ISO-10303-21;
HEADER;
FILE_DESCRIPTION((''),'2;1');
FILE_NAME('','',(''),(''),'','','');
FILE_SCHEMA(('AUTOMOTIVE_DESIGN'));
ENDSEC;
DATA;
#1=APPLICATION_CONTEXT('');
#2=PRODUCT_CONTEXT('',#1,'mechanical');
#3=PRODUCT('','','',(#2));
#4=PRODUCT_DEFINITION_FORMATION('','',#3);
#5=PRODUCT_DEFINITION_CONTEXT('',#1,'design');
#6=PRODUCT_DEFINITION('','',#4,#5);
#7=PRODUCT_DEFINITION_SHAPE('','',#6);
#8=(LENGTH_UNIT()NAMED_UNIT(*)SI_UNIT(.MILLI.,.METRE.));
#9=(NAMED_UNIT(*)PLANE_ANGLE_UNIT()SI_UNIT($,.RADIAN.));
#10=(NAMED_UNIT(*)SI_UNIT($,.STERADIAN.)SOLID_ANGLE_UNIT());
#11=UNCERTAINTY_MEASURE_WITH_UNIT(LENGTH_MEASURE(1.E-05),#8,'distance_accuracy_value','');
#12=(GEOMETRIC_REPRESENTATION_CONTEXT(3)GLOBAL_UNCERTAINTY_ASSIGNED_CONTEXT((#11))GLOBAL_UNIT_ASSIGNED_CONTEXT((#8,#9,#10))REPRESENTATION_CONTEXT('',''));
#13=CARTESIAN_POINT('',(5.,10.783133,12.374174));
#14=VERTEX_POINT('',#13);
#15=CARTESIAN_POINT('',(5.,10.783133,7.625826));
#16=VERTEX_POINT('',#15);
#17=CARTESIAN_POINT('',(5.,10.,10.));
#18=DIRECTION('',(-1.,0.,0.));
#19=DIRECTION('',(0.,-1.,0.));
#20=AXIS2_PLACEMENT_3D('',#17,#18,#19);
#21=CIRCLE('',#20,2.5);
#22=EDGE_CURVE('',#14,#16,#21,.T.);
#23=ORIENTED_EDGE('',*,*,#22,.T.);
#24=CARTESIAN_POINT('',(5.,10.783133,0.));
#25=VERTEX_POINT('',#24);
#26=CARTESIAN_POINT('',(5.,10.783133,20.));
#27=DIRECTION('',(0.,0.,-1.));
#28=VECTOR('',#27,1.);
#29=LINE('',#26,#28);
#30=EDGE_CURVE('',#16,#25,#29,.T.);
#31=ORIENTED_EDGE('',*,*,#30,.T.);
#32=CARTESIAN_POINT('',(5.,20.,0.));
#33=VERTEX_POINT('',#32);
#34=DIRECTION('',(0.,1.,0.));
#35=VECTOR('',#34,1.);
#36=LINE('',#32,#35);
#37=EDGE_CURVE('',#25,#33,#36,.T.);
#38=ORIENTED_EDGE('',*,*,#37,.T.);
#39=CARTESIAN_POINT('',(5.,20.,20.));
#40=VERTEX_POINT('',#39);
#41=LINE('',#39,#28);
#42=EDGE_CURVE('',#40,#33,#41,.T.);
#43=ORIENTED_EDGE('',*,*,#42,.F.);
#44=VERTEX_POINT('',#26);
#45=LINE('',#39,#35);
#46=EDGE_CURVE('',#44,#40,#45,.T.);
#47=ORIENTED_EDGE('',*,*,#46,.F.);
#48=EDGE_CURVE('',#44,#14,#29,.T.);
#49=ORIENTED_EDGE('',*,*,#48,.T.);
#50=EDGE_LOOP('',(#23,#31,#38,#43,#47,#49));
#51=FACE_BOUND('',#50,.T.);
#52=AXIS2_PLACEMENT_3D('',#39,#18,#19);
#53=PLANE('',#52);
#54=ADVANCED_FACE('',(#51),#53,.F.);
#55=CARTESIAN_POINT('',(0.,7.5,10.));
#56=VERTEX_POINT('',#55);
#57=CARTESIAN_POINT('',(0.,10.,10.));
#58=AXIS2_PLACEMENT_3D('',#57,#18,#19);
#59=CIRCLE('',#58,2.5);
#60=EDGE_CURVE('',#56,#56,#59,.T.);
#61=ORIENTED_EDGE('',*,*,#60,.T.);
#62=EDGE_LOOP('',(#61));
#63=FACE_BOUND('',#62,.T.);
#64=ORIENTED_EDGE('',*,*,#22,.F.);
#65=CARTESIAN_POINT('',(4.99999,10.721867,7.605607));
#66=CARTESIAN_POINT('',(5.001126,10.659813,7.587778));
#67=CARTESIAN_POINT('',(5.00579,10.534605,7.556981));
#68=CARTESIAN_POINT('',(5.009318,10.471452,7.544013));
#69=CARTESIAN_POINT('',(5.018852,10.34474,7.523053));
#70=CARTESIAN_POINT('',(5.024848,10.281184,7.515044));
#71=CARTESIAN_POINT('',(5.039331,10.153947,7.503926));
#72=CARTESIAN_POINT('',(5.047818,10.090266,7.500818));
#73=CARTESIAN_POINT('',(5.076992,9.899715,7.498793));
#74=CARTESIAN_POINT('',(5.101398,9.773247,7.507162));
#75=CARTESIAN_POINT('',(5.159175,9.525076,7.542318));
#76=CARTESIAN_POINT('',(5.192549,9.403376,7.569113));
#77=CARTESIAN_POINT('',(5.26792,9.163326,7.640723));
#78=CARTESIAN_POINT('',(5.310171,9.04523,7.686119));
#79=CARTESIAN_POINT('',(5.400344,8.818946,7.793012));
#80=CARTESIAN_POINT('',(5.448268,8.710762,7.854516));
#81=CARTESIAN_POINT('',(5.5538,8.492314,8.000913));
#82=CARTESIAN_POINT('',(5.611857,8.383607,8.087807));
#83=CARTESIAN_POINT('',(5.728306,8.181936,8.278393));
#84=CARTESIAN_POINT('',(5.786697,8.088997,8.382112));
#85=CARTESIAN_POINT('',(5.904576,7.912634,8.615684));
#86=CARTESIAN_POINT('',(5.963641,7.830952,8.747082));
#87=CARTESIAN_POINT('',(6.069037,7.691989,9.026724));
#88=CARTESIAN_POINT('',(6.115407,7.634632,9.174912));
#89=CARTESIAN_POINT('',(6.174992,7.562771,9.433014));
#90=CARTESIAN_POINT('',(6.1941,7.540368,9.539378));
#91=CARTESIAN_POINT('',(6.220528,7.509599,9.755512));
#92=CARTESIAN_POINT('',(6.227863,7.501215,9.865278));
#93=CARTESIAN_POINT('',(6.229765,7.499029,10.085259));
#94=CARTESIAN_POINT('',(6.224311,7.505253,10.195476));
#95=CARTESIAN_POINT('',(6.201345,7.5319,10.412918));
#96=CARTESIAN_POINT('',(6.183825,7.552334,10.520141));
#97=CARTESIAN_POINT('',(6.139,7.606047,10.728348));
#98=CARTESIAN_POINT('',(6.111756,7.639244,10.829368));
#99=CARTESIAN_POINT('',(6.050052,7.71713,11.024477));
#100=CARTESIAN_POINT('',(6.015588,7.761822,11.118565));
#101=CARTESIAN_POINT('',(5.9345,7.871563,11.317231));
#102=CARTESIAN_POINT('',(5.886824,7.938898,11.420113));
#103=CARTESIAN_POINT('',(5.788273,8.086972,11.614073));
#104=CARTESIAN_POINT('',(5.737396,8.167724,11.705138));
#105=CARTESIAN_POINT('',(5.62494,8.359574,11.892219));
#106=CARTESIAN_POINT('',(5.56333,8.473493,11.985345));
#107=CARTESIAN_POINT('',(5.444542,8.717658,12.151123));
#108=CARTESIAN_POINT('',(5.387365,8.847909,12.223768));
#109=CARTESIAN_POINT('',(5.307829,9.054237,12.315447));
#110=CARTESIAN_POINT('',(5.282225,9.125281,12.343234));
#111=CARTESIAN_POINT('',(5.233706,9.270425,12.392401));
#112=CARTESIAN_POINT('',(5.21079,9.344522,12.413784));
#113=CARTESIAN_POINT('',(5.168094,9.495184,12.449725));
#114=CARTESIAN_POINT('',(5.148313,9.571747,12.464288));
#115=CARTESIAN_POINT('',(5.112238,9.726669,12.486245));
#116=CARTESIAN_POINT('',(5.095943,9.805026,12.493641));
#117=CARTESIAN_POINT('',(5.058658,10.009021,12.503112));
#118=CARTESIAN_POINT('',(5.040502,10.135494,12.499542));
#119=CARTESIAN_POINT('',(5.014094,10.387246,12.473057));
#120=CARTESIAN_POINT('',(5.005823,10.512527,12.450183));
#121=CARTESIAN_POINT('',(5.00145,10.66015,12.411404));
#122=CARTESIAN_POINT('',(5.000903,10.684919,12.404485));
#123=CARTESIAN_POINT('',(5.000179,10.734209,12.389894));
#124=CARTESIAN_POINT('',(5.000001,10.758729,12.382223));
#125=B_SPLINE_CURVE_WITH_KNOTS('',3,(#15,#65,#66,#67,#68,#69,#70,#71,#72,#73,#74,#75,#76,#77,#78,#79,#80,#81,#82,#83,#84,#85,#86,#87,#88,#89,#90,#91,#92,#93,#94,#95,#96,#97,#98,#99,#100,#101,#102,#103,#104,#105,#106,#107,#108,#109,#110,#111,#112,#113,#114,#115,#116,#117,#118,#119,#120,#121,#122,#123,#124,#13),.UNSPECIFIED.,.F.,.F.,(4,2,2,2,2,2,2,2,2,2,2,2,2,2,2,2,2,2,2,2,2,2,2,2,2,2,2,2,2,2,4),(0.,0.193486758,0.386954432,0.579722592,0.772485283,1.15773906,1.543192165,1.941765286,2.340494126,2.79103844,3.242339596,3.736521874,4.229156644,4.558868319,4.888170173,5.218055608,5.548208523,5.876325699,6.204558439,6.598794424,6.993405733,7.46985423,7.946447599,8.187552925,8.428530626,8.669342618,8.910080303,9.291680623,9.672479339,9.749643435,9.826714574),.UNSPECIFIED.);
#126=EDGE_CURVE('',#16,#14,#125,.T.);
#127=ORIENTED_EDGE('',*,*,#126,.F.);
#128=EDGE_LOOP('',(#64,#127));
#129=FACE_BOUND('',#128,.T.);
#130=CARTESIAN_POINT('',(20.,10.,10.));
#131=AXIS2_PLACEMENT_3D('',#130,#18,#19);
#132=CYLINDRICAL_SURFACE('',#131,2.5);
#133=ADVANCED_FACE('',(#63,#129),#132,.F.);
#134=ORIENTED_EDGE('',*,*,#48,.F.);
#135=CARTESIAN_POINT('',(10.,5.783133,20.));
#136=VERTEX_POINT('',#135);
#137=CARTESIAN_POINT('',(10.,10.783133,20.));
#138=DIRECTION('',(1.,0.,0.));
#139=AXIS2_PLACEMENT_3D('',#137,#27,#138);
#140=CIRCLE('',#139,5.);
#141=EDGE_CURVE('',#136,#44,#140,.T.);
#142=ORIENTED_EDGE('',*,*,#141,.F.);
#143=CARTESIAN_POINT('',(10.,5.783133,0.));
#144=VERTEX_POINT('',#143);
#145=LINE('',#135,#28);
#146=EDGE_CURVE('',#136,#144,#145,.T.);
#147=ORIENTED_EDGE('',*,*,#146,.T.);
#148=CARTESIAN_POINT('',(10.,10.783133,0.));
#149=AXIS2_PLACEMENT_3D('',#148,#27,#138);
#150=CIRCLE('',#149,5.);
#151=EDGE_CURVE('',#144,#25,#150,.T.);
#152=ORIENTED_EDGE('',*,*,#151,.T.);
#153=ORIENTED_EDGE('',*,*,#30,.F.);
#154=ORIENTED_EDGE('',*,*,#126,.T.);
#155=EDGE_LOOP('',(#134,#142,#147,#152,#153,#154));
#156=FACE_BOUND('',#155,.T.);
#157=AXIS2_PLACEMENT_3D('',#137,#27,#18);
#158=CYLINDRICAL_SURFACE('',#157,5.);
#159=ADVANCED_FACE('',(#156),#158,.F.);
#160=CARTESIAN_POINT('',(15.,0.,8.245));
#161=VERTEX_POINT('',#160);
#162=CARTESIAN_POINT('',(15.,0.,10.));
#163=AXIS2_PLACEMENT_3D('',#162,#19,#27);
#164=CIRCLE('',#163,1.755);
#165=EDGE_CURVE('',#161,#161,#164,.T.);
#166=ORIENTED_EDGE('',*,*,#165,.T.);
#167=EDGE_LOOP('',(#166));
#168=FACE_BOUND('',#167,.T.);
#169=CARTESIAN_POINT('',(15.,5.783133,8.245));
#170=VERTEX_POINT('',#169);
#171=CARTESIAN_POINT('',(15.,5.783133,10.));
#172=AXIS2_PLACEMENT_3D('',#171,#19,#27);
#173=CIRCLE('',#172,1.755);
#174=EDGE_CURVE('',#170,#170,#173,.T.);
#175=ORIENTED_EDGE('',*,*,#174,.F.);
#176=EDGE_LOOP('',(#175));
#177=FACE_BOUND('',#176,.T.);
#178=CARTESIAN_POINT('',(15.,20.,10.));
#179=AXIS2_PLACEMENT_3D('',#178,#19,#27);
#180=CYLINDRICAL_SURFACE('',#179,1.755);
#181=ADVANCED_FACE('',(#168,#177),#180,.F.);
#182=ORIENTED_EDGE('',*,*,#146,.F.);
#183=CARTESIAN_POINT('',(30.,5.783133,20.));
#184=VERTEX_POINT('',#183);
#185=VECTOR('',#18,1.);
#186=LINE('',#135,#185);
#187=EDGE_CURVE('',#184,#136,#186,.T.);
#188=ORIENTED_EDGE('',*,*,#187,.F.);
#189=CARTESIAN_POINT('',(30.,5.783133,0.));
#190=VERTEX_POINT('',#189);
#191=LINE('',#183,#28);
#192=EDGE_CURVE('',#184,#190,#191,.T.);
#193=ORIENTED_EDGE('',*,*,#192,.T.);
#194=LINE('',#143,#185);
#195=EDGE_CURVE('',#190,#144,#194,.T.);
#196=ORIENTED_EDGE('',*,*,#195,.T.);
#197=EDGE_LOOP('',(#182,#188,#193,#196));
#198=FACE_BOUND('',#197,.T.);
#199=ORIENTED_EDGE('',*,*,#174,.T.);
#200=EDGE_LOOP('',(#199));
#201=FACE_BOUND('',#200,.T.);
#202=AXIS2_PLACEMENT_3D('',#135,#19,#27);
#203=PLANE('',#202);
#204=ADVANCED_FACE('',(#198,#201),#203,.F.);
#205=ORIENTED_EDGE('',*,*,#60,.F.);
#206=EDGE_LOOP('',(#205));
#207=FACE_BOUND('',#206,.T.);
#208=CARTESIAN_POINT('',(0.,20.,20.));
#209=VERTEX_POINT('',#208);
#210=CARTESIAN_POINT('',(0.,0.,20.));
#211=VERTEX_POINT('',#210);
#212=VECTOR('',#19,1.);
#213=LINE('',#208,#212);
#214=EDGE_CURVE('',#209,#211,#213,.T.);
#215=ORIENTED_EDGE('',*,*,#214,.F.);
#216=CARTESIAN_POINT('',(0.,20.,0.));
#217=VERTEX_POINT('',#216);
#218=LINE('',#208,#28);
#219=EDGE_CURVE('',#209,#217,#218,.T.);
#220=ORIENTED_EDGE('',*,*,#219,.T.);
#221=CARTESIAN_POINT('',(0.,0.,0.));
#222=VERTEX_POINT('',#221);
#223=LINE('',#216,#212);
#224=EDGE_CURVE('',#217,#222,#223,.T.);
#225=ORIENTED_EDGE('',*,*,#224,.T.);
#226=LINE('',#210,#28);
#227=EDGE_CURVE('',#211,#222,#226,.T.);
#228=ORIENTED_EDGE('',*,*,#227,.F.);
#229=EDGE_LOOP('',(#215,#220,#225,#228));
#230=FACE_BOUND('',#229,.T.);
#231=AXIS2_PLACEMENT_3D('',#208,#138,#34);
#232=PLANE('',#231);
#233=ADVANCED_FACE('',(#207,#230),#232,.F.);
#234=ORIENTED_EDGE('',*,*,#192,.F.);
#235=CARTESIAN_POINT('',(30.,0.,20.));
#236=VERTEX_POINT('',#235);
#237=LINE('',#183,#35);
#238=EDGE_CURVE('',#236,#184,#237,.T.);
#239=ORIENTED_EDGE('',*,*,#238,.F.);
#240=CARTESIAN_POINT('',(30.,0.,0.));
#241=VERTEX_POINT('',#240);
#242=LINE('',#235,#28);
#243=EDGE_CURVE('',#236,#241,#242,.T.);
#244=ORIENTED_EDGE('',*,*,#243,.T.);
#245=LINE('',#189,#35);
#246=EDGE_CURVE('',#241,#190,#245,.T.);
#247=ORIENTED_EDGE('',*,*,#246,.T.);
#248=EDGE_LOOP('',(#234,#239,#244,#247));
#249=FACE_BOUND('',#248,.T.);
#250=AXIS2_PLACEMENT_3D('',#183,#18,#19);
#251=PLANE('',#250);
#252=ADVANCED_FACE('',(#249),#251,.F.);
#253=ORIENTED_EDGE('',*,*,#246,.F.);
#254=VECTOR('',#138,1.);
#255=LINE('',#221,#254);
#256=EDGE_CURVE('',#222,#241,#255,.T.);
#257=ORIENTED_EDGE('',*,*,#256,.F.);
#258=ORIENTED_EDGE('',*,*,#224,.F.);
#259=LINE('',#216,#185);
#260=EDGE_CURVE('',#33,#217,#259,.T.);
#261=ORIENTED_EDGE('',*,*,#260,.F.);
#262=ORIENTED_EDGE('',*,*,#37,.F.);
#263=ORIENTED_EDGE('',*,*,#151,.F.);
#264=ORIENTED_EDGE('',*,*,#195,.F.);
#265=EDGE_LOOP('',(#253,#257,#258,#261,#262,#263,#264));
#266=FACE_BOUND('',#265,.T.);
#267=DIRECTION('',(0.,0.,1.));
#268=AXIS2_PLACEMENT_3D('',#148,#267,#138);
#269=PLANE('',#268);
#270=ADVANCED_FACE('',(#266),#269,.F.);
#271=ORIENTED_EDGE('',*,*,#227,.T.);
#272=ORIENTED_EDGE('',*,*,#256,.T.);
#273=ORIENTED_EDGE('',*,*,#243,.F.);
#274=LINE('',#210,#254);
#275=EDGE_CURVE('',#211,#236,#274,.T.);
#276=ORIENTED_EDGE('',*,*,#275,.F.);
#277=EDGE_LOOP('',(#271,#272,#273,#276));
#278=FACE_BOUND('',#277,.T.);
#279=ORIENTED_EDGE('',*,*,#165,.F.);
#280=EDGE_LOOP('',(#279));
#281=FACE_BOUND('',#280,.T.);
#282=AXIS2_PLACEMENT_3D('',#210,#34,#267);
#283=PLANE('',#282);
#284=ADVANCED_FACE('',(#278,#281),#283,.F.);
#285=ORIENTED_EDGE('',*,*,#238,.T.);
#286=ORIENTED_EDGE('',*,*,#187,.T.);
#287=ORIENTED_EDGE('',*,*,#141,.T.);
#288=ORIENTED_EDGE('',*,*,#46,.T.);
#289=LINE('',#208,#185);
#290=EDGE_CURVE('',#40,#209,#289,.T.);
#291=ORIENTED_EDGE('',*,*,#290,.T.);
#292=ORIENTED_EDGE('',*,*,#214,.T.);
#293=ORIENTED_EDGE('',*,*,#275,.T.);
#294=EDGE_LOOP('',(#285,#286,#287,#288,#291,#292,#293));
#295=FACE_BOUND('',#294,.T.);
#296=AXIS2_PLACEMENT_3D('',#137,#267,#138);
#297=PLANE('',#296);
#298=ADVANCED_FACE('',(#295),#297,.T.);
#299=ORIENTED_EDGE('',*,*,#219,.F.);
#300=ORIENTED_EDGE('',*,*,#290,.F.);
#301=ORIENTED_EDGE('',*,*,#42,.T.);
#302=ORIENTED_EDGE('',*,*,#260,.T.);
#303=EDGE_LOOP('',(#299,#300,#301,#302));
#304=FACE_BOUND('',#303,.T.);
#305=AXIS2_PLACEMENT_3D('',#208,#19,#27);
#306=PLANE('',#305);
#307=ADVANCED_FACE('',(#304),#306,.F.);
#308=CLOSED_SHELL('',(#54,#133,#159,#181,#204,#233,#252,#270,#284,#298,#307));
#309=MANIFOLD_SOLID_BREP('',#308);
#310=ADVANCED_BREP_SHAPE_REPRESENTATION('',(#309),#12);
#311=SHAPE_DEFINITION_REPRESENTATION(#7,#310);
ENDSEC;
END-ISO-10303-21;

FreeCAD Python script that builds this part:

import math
import FreeCAD as App
import Part
import Sketcher

doc = App.newDocument("Part")
params = doc.addObject("Spreadsheet::Sheet", "Params")
for row, (alias, value) in enumerate([
    ("sketch1_radius", "5 mm"),
    ("sketch1_width", "30 mm"),
    ("sketch1_width2", "20 mm"),
    ("pad1_length", "20 mm"),
    ("sketch2_diameter", "3.51 mm"),
    ("pocket1_length", "20 mm"),
    ("sketch3_diameter", "5 mm"),
    ("pocket2_length", "20 mm"),
], start=1):
    params.set(f"A{row}", alias)
    params.set(f"B{row}", "=" + value)
    params.setAlias(f"B{row}", alias)

body = doc.addObject("PartDesign::Body", "Body")

# Sketch on XY plane
sketch1 = body.newObject("Sketcher::SketchObject", "Sketch")
sketch1.AttachmentSupport = (doc.getObject("XY_Plane"), [""])
sketch1.MapMode = "FlatFace"
sketch1.addGeometry([
    Part.LineSegment(App.Vector(0, 20, 0), App.Vector(0, 0, 0)),  # 0
    Part.LineSegment(App.Vector(0, 0, 0), App.Vector(30, 0, 0)),  # 1
    Part.LineSegment(App.Vector(30, 0, 0), App.Vector(30, 6, 0)),  # 2
    Part.LineSegment(App.Vector(30, 6, 0), App.Vector(10, 6, 0)),  # 3
    Part.ArcOfCircle(Part.Circle(App.Vector(10, 11, 0), App.Vector(0, 0, 1), 5), math.radians(180), math.radians(270)),  # 4
    Part.LineSegment(App.Vector(5, 11, 0), App.Vector(5, 20, 0)),  # 5
    Part.LineSegment(App.Vector(5, 20, 0), App.Vector(0, 20, 0)),  # 6
], False)
sketch1.addConstraint([
    Sketcher.Constraint("Coincident", 0, 2, 1, 1),
    Sketcher.Constraint("Coincident", 1, 2, 2, 1),
    Sketcher.Constraint("Coincident", 2, 2, 3, 1),
    Sketcher.Constraint("Tangent", 3, 2, 4, 2),
    Sketcher.Constraint("Tangent", 4, 1, 5, 1),
    Sketcher.Constraint("Coincident", 5, 2, 6, 1),
    Sketcher.Constraint("Coincident", 6, 2, 0, 1),
    Sketcher.Constraint("Vertical", 0),
    Sketcher.Constraint("Horizontal", 1),
    Sketcher.Constraint("Vertical", 2),
    Sketcher.Constraint("Horizontal", 3),
    Sketcher.Constraint("Vertical", 5),
    Sketcher.Constraint("Horizontal", 6),
    Sketcher.Constraint("Coincident", 0, 2, -1, 1),
    Sketcher.Constraint("Equal", 3, 0),
    Sketcher.Constraint("Radius", 4, 5.0),
    Sketcher.Constraint("DistanceX", 1, 1, 1, 2, 30.0),
    Sketcher.Constraint("DistanceX", 3, 2, 3, 1, 20.0),
    Sketcher.Constraint("DistanceY", 2, 1, 2, 2, 5.783133),
])
sketch1.setExpression("Constraints[15]", "Params.sketch1_radius")
sketch1.setExpression("Constraints[16]", "Params.sketch1_width")
sketch1.setExpression("Constraints[17]", "Params.sketch1_width2")
pad1 = body.newObject("PartDesign::Pad", "Pad")
pad1.Profile = sketch1
pad1.setExpression("Length", "Params.pad1_length")

# Sketch on XZ plane
sketch2 = body.newObject("Sketcher::SketchObject", "Sketch001")
sketch2.AttachmentSupport = (doc.getObject("XZ_Plane"), [""])
sketch2.MapMode = "FlatFace"
sketch2.addGeometry(Part.Circle(App.Vector(15, 10, 0), App.Vector(0, 0, 1), 1.8), False)
sketch2.addConstraint([
    Sketcher.Constraint("Diameter", 0, 3.51),
    Sketcher.Constraint("DistanceX", -1, 1, 0, 3, 15.0),
    Sketcher.Constraint("DistanceY", -1, 1, 0, 3, 10.0),
])
sketch2.setExpression("Constraints[0]", "Params.sketch2_diameter")
pocket1 = body.newObject("PartDesign::Pocket", "Pocket")
pocket1.Profile = sketch2
pocket1.setExpression("Length", "Params.pocket1_length")

# Sketch on YZ plane
sketch3 = body.newObject("Sketcher::SketchObject", "Sketch002")
sketch3.AttachmentSupport = (doc.getObject("YZ_Plane"), [""])
sketch3.MapMode = "FlatFace"
sketch3.addGeometry(Part.Circle(App.Vector(10, 10, 0), App.Vector(0, 0, 1), 2.5), False)
sketch3.addConstraint([
    Sketcher.Constraint("Diameter", 0, 5.0),
    Sketcher.Constraint("DistanceX", -1, 1, 0, 3, 10.0),
    Sketcher.Constraint("DistanceY", -1, 1, 0, 3, 10.0),
])
sketch3.setExpression("Constraints[0]", "Params.sketch3_diameter")
pocket2 = body.newObject("PartDesign::Pocket", "Pocket001")
pocket2.Profile = sketch3
pocket2.setExpression("Length", "Params.pocket2_length")
pocket2.Reversed = True

doc.recompute()
